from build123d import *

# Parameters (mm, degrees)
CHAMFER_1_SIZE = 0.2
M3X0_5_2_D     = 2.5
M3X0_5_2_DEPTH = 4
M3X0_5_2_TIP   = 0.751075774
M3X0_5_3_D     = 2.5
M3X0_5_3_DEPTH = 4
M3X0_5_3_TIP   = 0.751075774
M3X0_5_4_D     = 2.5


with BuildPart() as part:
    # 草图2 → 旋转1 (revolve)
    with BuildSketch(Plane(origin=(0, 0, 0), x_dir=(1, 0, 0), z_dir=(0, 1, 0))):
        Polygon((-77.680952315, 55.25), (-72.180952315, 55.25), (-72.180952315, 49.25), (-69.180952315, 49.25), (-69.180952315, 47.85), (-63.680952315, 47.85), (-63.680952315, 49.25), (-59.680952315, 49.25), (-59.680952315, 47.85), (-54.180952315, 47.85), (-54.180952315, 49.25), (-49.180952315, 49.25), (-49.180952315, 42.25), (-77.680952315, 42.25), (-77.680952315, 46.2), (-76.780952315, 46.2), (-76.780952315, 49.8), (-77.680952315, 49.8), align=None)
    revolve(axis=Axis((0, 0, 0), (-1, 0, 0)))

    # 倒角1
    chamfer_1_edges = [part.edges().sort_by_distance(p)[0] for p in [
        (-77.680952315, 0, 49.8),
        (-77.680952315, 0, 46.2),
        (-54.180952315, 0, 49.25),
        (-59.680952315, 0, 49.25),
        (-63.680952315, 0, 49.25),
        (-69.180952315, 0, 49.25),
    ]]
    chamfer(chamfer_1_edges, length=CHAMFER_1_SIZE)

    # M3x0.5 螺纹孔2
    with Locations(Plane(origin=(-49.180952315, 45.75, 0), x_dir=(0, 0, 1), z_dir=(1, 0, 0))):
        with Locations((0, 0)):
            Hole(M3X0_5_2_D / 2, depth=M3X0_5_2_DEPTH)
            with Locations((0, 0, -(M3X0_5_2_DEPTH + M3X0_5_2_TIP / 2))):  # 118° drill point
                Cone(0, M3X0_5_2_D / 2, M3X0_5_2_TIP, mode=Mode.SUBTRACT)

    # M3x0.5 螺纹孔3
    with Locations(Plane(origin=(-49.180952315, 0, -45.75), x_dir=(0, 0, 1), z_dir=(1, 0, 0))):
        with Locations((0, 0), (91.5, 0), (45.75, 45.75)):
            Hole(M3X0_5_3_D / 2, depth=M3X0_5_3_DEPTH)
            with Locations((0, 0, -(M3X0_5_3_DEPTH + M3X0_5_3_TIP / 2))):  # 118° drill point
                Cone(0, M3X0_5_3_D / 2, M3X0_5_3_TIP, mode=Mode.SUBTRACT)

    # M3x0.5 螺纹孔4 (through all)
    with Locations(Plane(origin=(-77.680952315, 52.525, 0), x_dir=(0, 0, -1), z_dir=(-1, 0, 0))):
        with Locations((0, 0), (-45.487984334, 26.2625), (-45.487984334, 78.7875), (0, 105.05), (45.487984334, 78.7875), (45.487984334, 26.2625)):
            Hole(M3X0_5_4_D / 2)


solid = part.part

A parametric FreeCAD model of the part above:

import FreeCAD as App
import Part
import Sketcher
Q = App.Units.Quantity


def edges_at(feature, points):
    """Names of the edges that pass closest to the given points."""
    edges = feature.Shape.Edges
    near = lambda p: min(range(len(edges)), key=lambda i: edges[i].distToShape(Part.Vertex(*p))[0])
    return sorted({f"Edge{near(p) + 1}" for p in points})

doc = App.newDocument("Part")
body = doc.addObject("PartDesign::Body", "Body")

# Sketch on XZ plane
sketch1 = body.newObject("Sketcher::SketchObject", "Sketch")
sketch1.AttachmentSupport = (doc.getObject("XZ_Plane"), [""])
sketch1.MapMode = "FlatFace"
sketch1.addGeometry([
    Part.LineSegment(App.Vector(-72.2, -55.2, 0), App.Vector(-77.7, -55.2, 0)),  # 0
    Part.LineSegment(App.Vector(-77.7, -55.2, 0), App.Vector(-77.7, -49.8, 0)),  # 1
    Part.LineSegment(App.Vector(-77.7, -49.8, 0), App.Vector(-76.8, -49.8, 0)),  # 2
    Part.LineSegment(App.Vector(-76.8, -49.8, 0), App.Vector(-76.8, -46.2, 0)),  # 3
    Part.LineSegment(App.Vector(-76.8, -46.2, 0), App.Vector(-77.7, -46.2, 0)),  # 4
    Part.LineSegment(App.Vector(-77.7, -46.2, 0), App.Vector(-77.7, -42.2, 0)),  # 5
    Part.LineSegment(App.Vector(-77.7, -42.2, 0), App.Vector(-49.2, -42.2, 0)),  # 6
    Part.LineSegment(App.Vector(-49.2, -42.2, 0), App.Vector(-49.2, -49.2, 0)),  # 7
    Part.LineSegment(App.Vector(-49.2, -49.2, 0), App.Vector(-54.2, -49.2, 0)),  # 8
    Part.LineSegment(App.Vector(-54.2, -49.2, 0), App.Vector(-54.2, -47.9, 0)),  # 9
    Part.LineSegment(App.Vector(-54.2, -47.9, 0), App.Vector(-59.7, -47.9, 0)),  # 10
    Part.LineSegment(App.Vector(-59.7, -47.9, 0), App.Vector(-59.7, -49.2, 0)),  # 11
    Part.LineSegment(App.Vector(-59.7, -49.2, 0), App.Vector(-63.7, -49.2, 0)),  # 12
    Part.LineSegment(App.Vector(-63.7, -49.2, 0), App.Vector(-63.7, -47.9, 0)),  # 13
    Part.LineSegment(App.Vector(-63.7, -47.9, 0), App.Vector(-69.2, -47.9, 0)),  # 14
    Part.LineSegment(App.Vector(-69.2, -47.9, 0), App.Vector(-69.2, -49.2, 0)),  # 15
    Part.LineSegment(App.Vector(-69.2, -49.2, 0), App.Vector(-72.2, -49.2, 0)),  # 16
    Part.LineSegment(App.Vector(-72.2, -49.2, 0), App.Vector(-72.2, -55.2, 0)),  # 17
], False)
sketch1.addConstraint([
    Sketcher.Constraint("Coincident", 0, 2, 1, 1),
    Sketcher.Constraint("Coincident", 1, 2, 2, 1),
    Sketcher.Constraint("Coincident", 2, 2, 3, 1),
    Sketcher.Constraint("Coincident", 3, 2, 4, 1),
    Sketcher.Constraint("Coincident", 4, 2, 5, 1),
    Sketcher.Constraint("Coincident", 5, 2, 6, 1),
    Sketcher.Constraint("Coincident", 6, 2, 7, 1),
    Sketcher.Constraint("Coincident", 7, 2, 8, 1),
    Sketcher.Constraint("Coincident", 8, 2, 9, 1),
    Sketcher.Constraint("Coincident", 9, 2, 10, 1),
    Sketcher.Constraint("Coincident", 10, 2, 11, 1),
    Sketcher.Constraint("Coincident", 11, 2, 12, 1),
    Sketcher.Constraint("Coincident", 12, 2, 13, 1),
    Sketcher.Constraint("Coincident", 13, 2, 14, 1),
    Sketcher.Constraint("Coincident", 14, 2, 15, 1),
    Sketcher.Constraint("Coincident", 15, 2, 16, 1),
    Sketcher.Constraint("Coincident", 16, 2, 17, 1),
    Sketcher.Constraint("Coincident", 17, 2, 0, 1),
    Sketcher.Constraint("Horizontal", 0),
    Sketcher.Constraint("Vertical", 1),
    Sketcher.Constraint("Horizontal", 2),
    Sketcher.Constraint("Vertical", 3),
    Sketcher.Constraint("Horizontal", 4),
    Sketcher.Constraint("Vertical", 5),
    Sketcher.Constraint("Horizontal", 6),
    Sketcher.Constraint("Vertical", 7),
    Sketcher.Constraint("Horizontal", 8),
    Sketcher.Constraint("Vertical", 9),
    Sketcher.Constraint("Horizontal", 10),
    Sketcher.Constraint("Vertical", 11),
    Sketcher.Constraint("Horizontal", 12),
    Sketcher.Constraint("Vertical", 13),
    Sketcher.Constraint("Horizontal", 14),
    Sketcher.Constraint("Vertical", 15),
    Sketcher.Constraint("Horizontal", 16),
    Sketcher.Constraint("Vertical", 17),
    Sketcher.Constraint("Horizontal", 8, 2, 11, 2),
    Sketcher.Constraint("Horizontal", 10, 2, 13, 2),
    Sketcher.Constraint("Horizontal", 12, 2, 15, 2),
    Sketcher.Constraint("Vertical", 1, 2, 4, 2),
    Sketcher.Constraint("Equal", 0, 10),
    Sketcher.Constraint("Equal", 10, 14),
    Sketcher.Constraint("DistanceX", 8, 2, 8, 1, Q("5 mm")),
    Sketcher.Constraint("DistanceX", 12, 2, 12, 1, Q("4 mm")),
    Sketcher.Constraint("DistanceX", 16, 2, 16, 1, Q("3 mm")),
    Sketcher.Constraint("DistanceY", 7, 2, 7, 1, Q("7 mm")),
    Sketcher.Constraint("DistanceY", 17, 2, 17, 1, Q("6 mm")),
    Sketcher.Constraint("DistanceX", 0, 2, 0, 1, Q("5.5 mm")),
    Sketcher.Constraint("DistanceX", 2, 1, 2, 2, Q("0.9 mm")),
    Sketcher.Constraint("DistanceY", 3, 1, 3, 2, Q("3.6 mm")),
    Sketcher.Constraint("DistanceY", 9, 1, 9, 2, Q("1.4 mm")),
    Sketcher.Constraint("DistanceY", 1, 1, 1, 2, Q("5.45 mm")),
    Sketcher.Constraint("DistanceY", 1, 2, -1, 1, Q("49.8 mm")),
    Sketcher.Constraint("DistanceX", 0, 2, -1, 1, Q("77.680952 mm")),
])
revolution = body.newObject("PartDesign::Revolution", "Revolution")
revolution.Profile = sketch1
revolution.ReferenceAxis = (sketch1, ["H_Axis"])
revolution.Angle = 360
doc.recompute()

chamfer = body.newObject("PartDesign::Chamfer", "Chamfer")
chamfer.Base = (revolution, edges_at(revolution, [
    (-77.681, 0, 49.8),
    (-77.681, 0, 46.2),
    (-54.181, 0, 49.25),
    (-59.681, 0, 49.25),
    (-63.681, 0, 49.25),
    (-69.181, 0, 49.25),
]))
chamfer.Size = 0.2

# Sketch on YZ plane
sketch2 = body.newObject("Sketcher::SketchObject", "Sketch001")
sketch2.AttachmentSupport = (doc.getObject("YZ_Plane"), [""])
sketch2.MapMode = "FlatFace"
sketch2.AttachmentOffset = App.Placement(App.Vector(0, 0, -49.180952), App.Rotation())
sketch2.addGeometry(Part.Circle(App.Vector(45.8, 0, 0), App.Vector(0, 0, 1), 1.2), False)
sketch2.addConstraint([
    Sketcher.Constraint("PointOnObject", 0, 3, -1),
    Sketcher.Constraint("Diameter", 0, Q("2.5 mm")),
    Sketcher.Constraint("DistanceX", -1, 1, 0, 3, Q("45.75 mm")),
])
doc.recompute()
hole = body.newObject("PartDesign::Hole", "Hole")
hole.Profile = sketch2
hole.ThreadType = "None"
hole.Diameter = 2.5
hole.DepthType = "Dimension"
hole.Depth = 4
hole.DrillPoint = "Angled"
hole.DrillPointAngle = 118

# Sketch on YZ plane
sketch3 = body.newObject("Sketcher::SketchObject", "Sketch002")
sketch3.AttachmentSupport = (doc.getObject("YZ_Plane"), [""])
sketch3.MapMode = "FlatFace"
sketch3.AttachmentOffset = App.Placement(App.Vector(0, 0, -49.180952), App.Rotation())
sketch3.addGeometry([
    Part.Circle(App.Vector(0, -45.8, 0), App.Vector(0, 0, 1), 1.2),
    Part.Circle(App.Vector(0, 45.8, 0), App.Vector(0, 0, 1), 1.2),
    Part.Circle(App.Vector(-45.8, 0, 0), App.Vector(0, 0, 1), 1.2),
], False)
sketch3.addConstraint([
    Sketcher.Constraint("Equal", 0, 1),
    Sketcher.Constraint("Equal", 1, 2),
    Sketcher.Constraint("Symmetric", 0, 3, 1, 3, -1, 1),
    Sketcher.Constraint("PointOnObject", 0, 3, -2),
    Sketcher.Constraint("PointOnObject", 2, 3, -1),
    Sketcher.Constraint("Diameter", 0, Q("2.5 mm")),
    Sketcher.Constraint("DistanceY", 0, 3, 1, 3, Q("91.5 mm")),
    Sketcher.Constraint("DistanceX", 2, 3, -1, 1, Q("45.75 mm")),
])
doc.recompute()
hole2 = body.newObject("PartDesign::Hole", "Hole001")
hole2.Profile = sketch3
hole2.ThreadType = "None"
hole2.Diameter = 2.5
hole2.DepthType = "Dimension"
hole2.Depth = 4
hole2.DrillPoint = "Angled"
hole2.DrillPointAngle = 118

# Sketch on YZ plane
sketch4 = body.newObject("Sketcher::SketchObject", "Sketch003")
sketch4.AttachmentSupport = (doc.getObject("YZ_Plane"), [""])
sketch4.MapMode = "FlatFace"
sketch4.AttachmentOffset = App.Placement(App.Vector(0, 0, -77.680952), App.Rotation())
sketch4.addGeometry([
    Part.Circle(App.Vector(52.5, 0, 0), App.Vector(0, 0, 1), 1.2),  # 0
    Part.Circle(App.Vector(26.3, 45.5, 0), App.Vector(0, 0, 1), 1.2),  # 1
    Part.Circle(App.Vector(-26.3, 45.5, 0), App.Vector(0, 0, 1), 1.2),  # 2
    Part.Circle(App.Vector(-52.5, 0, 0), App.Vector(0, 0, 1), 1.2),  # 3
    Part.Circle(App.Vector(-26.3, -45.5, 0), App.Vector(0, 0, 1), 1.2),  # 4
    Part.Circle(App.Vector(26.3, -45.5, 0), App.Vector(0, 0, 1), 1.2),  # 5
], False)
sketch4.addConstraint([
    Sketcher.Constraint("Equal", 0, 1),
    Sketcher.Constraint("Equal", 1, 2),
    Sketcher.Constraint("Equal", 2, 3),
    Sketcher.Constraint("Equal", 3, 4),
    Sketcher.Constraint("Equal", 4, 5),
    Sketcher.Constraint("Symmetric", 0, 3, 3, 3, -1, 1),
    Sketcher.Constraint("Symmetric", 1, 3, 4, 3, -1, 1),
    Sketcher.Constraint("Symmetric", 2, 3, 5, 3, -1, 1),
    Sketcher.Constraint("Symmetric", 1, 3, 2, 3, -2),
    Sketcher.Constraint("PointOnObject", 0, 3, -1),
    Sketcher.Constraint("Diameter", 0, Q("2.5 mm")),
    Sketcher.Constraint("DistanceX", 3, 3, 0, 3, Q("105.05 mm")),
    Sketcher.Constraint("DistanceX", 2, 3, 1, 3, Q("52.525 mm")),
    Sketcher.Constraint("DistanceY", 4, 3, 2, 3, Q("90.975969 mm")),
])
doc.recompute()
hole3 = body.newObject("PartDesign::Hole", "Hole002")
hole3.Profile = sketch4
hole3.ThreadType = "None"
hole3.Diameter = 2.5
hole3.DepthType = "ThroughAll"
hole3.Reversed = True

doc.recompute()
